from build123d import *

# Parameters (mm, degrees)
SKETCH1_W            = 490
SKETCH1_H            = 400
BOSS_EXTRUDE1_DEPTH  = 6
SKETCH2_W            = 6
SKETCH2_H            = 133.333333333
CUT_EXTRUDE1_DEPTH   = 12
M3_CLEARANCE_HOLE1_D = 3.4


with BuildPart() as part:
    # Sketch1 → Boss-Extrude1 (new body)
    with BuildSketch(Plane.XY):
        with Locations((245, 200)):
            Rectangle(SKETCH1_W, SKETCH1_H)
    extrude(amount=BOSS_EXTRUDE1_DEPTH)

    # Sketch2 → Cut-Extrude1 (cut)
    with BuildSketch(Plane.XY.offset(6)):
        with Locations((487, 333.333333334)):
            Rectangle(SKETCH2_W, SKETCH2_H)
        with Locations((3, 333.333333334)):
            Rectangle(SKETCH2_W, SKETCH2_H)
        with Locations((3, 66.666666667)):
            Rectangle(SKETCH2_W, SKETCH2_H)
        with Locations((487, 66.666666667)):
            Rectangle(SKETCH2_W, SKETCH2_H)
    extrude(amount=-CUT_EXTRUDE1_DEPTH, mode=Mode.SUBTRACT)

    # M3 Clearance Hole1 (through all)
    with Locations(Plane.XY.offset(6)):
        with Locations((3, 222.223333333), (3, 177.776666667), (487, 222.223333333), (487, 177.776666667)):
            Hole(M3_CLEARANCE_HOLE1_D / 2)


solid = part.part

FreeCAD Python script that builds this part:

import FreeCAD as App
import Part
import Sketcher

V = App.Vector

doc = App.newDocument("Part")
params = doc.addObject("Spreadsheet::Sheet", "Params")
for row, (alias, value) in enumerate([
    ("sketch1_width", "490 mm"),
    ("sketch1_height", "400 mm"),
    ("pad1_length", "6 mm"),
    ("sketch2_width", "6 mm"),
    ("pocket1_length", "12 mm"),
    ("sketch3_diameter", "3.4 mm"),
    ("hole_diameter", "3.4 mm"),
], start=1):
    params.set(f"A{row}", alias)
    params.set(f"B{row}", "=" + value)
    params.setAlias(f"B{row}", alias)

body = doc.addObject("PartDesign::Body", "Body")

# Sketch on XY plane
sketch1 = body.newObject("Sketcher::SketchObject", "Sketch")
sketch1.AttachmentSupport = (doc.getObject("XY_Plane"), [""])
sketch1.MapMode = "FlatFace"
sketch1.addGeometry([
    Part.LineSegment(V(0, 400, 0), V(0, 0, 0)),
    Part.LineSegment(V(0, 0, 0), V(490, 0, 0)),
    Part.LineSegment(V(490, 0, 0), V(490, 400, 0)),
    Part.LineSegment(V(490, 400, 0), V(0, 400, 0)),
], False)
sketch1.addConstraint([
    Sketcher.Constraint("Coincident", 0, 2, 1, 1),
    Sketcher.Constraint("Coincident", 1, 2, 2, 1),
    Sketcher.Constraint("Coincident", 2, 2, 3, 1),
    Sketcher.Constraint("Coincident", 3, 2, 0, 1),
    Sketcher.Constraint("Vertical", 0),
    Sketcher.Constraint("Horizontal", 1),
    Sketcher.Constraint("Vertical", 2),
    Sketcher.Constraint("Horizontal", 3),
    Sketcher.Constraint("Coincident", 0, 2, -1, 1),
    Sketcher.Constraint("DistanceX", 1, 1, 1, 2, 490.0),
    Sketcher.Constraint("DistanceY", 0, 2, 0, 1, 400.0),
])
sketch1.setExpression("Constraints[9]", "Params.sketch1_width")
sketch1.setExpression("Constraints[10]", "Params.sketch1_height")
pad1 = body.newObject("PartDesign::Pad", "Pad")
pad1.Profile = sketch1
pad1.setExpression("Length", "Params.pad1_length")

# Sketch on XY plane
sketch2 = body.newObject("Sketcher::SketchObject", "Sketch001")
sketch2.AttachmentSupport = (doc.getObject("XY_Plane"), [""])
sketch2.MapMode = "FlatFace"
sketch2.AttachmentOffset = App.Placement(V(0, 0, 6), App.Rotation())
sketch2.addGeometry([
    Part.LineSegment(V(484, 400, 0), V(484, 267, 0)),  # 0
    Part.LineSegment(V(484, 267, 0), V(490, 267, 0)),  # 1
    Part.LineSegment(V(490, 267, 0), V(490, 400, 0)),  # 2
    Part.LineSegment(V(490, 400, 0), V(484, 400, 0)),  # 3
    Part.LineSegment(V(0, 400, 0), V(0, 267, 0)),  # 4
    Part.LineSegment(V(0, 267, 0), V(6, 267, 0)),  # 5
    Part.LineSegment(V(6, 267, 0), V(6, 400, 0)),  # 6
    Part.LineSegment(V(6, 400, 0), V(0, 400, 0)),  # 7
    Part.LineSegment(V(0, 133, 0), V(0, 0, 0)),  # 8
    Part.LineSegment(V(0, 0, 0), V(6, 0, 0)),  # 9
    Part.LineSegment(V(6, 0, 0), V(6, 133, 0)),  # 10
    Part.LineSegment(V(6, 133, 0), V(0, 133, 0)),  # 11
    Part.LineSegment(V(484, 133, 0), V(484, 0, 0)),  # 12
    Part.LineSegment(V(484, 0, 0), V(490, 0, 0)),  # 13
    Part.LineSegment(V(490, 0, 0), V(490, 133, 0)),  # 14
    Part.LineSegment(V(490, 133, 0), V(484, 133, 0)),  # 15
], False)
sketch2.addConstraint([
    Sketcher.Constraint("Coincident", 0, 2, 1, 1),
    Sketcher.Constraint("Coincident", 1, 2, 2, 1),
    Sketcher.Constraint("Coincident", 2, 2, 3, 1),
    Sketcher.Constraint("Coincident", 3, 2, 0, 1),
    Sketcher.Constraint("Coincident", 4, 2, 5, 1),
    Sketcher.Constraint("Coincident", 5, 2, 6, 1),
    Sketcher.Constraint("Coincident", 6, 2, 7, 1),
    Sketcher.Constraint("Coincident", 7, 2, 4, 1),
    Sketcher.Constraint("Coincident", 8, 2, 9, 1),
    Sketcher.Constraint("Coincident", 9, 2, 10, 1),
    Sketcher.Constraint("Coincident", 10, 2, 11, 1),
    Sketcher.Constraint("Coincident", 11, 2, 8, 1),
    Sketcher.Constraint("Coincident", 12, 2, 13, 1),
    Sketcher.Constraint("Coincident", 13, 2, 14, 1),
    Sketcher.Constraint("Coincident", 14, 2, 15, 1),
    Sketcher.Constraint("Coincident", 15, 2, 12, 1),
    Sketcher.Constraint("Vertical", 0),
    Sketcher.Constraint("Horizontal", 1),
    Sketcher.Constraint("Vertical", 2),
    Sketcher.Constraint("Horizontal", 3),
    Sketcher.Constraint("Vertical", 4),
    Sketcher.Constraint("Horizontal", 5),
    Sketcher.Constraint("Vertical", 6),
    Sketcher.Constraint("Horizontal", 7),
    Sketcher.Constraint("Vertical", 8),
    Sketcher.Constraint("Horizontal", 9),
    Sketcher.Constraint("Vertical", 10),
    Sketcher.Constraint("Horizontal", 11),
    Sketcher.Constraint("Vertical", 12),
    Sketcher.Constraint("Horizontal", 13),
    Sketcher.Constraint("Vertical", 14),
    Sketcher.Constraint("Horizontal", 15),
    Sketcher.Constraint("Coincident", 8, 2, -1, 1),
    Sketcher.Constraint("PointOnObject", 4, 2, -2),
    Sketcher.Constraint("PointOnObject", 12, 2, -1),
    Sketcher.Constraint("Horizontal", 1, 2, 4, 2),
    Sketcher.Constraint("Horizontal", 3, 2, 6, 2),
    Sketcher.Constraint("Horizontal", 11, 2, 14, 2),
    Sketcher.Constraint("Vertical", 6, 2, 9, 2),
    Sketcher.Constraint("Vertical", 3, 2, 12, 2),
    Sketcher.Constraint("Vertical", 2, 2, 13, 2),
    Sketcher.Constraint("Equal", 3, 5),
    Sketcher.Constraint("Equal", 6, 8),
    Sketcher.Constraint("DistanceX", 1, 1, 1, 2, 6.0),
    Sketcher.Constraint("DistanceX", -1, 1, 0, 2, 484.0),
    Sketcher.Constraint("DistanceY", -1, 1, 2, 2, 400.0),
    Sketcher.Constraint("DistanceY", 0, 2, 0, 1, 133.333333),
])
sketch2.setExpression("Constraints[43]", "Params.sketch2_width")
pocket1 = body.newObject("PartDesign::Pocket", "Pocket")
pocket1.Profile = sketch2
pocket1.setExpression("Length", "Params.pocket1_length")

# Sketch on XY plane
sketch3 = body.newObject("Sketcher::SketchObject", "Sketch002")
sketch3.AttachmentSupport = (doc.getObject("XY_Plane"), [""])
sketch3.MapMode = "FlatFace"
sketch3.AttachmentOffset = App.Placement(V(0, 0, 6), App.Rotation())
sketch3.addGeometry([
    Part.Circle(V(3, 222.2, 0), V(0, 0, 1), 1.7),
    Part.Circle(V(3, 177.8, 0), V(0, 0, 1), 1.7),
    Part.Circle(V(487, 222.2, 0), V(0, 0, 1), 1.7),
    Part.Circle(V(487, 177.8, 0), V(0, 0, 1), 1.7),
], False)
sketch3.addConstraint([
    Sketcher.Constraint("Equal", 0, 1),
    Sketcher.Constraint("Equal", 1, 2),
    Sketcher.Constraint("Equal", 2, 3),
    Sketcher.Constraint("Horizontal", 0, 3, 2, 3),
    Sketcher.Constraint("Horizontal", 1, 3, 3, 3),
    Sketcher.Constraint("Vertical", 0, 3, 1, 3),
    Sketcher.Constraint("Vertical", 2, 3, 3, 3),
    Sketcher.Constraint("Diameter", 0, 3.4),
    Sketcher.Constraint("DistanceX", -1, 1, 0, 3, 3.0),
    Sketcher.Constraint("DistanceX", -1, 1, 2, 3, 487.0),
    Sketcher.Constraint("DistanceY", -1, 1, 0, 3, 222.223333),
    Sketcher.Constraint("DistanceY", -1, 1, 1, 3, 177.776667),
])
sketch3.setExpression("Constraints[7]", "Params.sketch3_diameter")
doc.recompute()
hole = body.newObject("PartDesign::Hole", "Hole")
hole.Profile = sketch3
hole.ThreadType = "None"
hole.setExpression("Diameter", "Params.hole_diameter")
hole.DepthType = "ThroughAll"

doc.recompute()
